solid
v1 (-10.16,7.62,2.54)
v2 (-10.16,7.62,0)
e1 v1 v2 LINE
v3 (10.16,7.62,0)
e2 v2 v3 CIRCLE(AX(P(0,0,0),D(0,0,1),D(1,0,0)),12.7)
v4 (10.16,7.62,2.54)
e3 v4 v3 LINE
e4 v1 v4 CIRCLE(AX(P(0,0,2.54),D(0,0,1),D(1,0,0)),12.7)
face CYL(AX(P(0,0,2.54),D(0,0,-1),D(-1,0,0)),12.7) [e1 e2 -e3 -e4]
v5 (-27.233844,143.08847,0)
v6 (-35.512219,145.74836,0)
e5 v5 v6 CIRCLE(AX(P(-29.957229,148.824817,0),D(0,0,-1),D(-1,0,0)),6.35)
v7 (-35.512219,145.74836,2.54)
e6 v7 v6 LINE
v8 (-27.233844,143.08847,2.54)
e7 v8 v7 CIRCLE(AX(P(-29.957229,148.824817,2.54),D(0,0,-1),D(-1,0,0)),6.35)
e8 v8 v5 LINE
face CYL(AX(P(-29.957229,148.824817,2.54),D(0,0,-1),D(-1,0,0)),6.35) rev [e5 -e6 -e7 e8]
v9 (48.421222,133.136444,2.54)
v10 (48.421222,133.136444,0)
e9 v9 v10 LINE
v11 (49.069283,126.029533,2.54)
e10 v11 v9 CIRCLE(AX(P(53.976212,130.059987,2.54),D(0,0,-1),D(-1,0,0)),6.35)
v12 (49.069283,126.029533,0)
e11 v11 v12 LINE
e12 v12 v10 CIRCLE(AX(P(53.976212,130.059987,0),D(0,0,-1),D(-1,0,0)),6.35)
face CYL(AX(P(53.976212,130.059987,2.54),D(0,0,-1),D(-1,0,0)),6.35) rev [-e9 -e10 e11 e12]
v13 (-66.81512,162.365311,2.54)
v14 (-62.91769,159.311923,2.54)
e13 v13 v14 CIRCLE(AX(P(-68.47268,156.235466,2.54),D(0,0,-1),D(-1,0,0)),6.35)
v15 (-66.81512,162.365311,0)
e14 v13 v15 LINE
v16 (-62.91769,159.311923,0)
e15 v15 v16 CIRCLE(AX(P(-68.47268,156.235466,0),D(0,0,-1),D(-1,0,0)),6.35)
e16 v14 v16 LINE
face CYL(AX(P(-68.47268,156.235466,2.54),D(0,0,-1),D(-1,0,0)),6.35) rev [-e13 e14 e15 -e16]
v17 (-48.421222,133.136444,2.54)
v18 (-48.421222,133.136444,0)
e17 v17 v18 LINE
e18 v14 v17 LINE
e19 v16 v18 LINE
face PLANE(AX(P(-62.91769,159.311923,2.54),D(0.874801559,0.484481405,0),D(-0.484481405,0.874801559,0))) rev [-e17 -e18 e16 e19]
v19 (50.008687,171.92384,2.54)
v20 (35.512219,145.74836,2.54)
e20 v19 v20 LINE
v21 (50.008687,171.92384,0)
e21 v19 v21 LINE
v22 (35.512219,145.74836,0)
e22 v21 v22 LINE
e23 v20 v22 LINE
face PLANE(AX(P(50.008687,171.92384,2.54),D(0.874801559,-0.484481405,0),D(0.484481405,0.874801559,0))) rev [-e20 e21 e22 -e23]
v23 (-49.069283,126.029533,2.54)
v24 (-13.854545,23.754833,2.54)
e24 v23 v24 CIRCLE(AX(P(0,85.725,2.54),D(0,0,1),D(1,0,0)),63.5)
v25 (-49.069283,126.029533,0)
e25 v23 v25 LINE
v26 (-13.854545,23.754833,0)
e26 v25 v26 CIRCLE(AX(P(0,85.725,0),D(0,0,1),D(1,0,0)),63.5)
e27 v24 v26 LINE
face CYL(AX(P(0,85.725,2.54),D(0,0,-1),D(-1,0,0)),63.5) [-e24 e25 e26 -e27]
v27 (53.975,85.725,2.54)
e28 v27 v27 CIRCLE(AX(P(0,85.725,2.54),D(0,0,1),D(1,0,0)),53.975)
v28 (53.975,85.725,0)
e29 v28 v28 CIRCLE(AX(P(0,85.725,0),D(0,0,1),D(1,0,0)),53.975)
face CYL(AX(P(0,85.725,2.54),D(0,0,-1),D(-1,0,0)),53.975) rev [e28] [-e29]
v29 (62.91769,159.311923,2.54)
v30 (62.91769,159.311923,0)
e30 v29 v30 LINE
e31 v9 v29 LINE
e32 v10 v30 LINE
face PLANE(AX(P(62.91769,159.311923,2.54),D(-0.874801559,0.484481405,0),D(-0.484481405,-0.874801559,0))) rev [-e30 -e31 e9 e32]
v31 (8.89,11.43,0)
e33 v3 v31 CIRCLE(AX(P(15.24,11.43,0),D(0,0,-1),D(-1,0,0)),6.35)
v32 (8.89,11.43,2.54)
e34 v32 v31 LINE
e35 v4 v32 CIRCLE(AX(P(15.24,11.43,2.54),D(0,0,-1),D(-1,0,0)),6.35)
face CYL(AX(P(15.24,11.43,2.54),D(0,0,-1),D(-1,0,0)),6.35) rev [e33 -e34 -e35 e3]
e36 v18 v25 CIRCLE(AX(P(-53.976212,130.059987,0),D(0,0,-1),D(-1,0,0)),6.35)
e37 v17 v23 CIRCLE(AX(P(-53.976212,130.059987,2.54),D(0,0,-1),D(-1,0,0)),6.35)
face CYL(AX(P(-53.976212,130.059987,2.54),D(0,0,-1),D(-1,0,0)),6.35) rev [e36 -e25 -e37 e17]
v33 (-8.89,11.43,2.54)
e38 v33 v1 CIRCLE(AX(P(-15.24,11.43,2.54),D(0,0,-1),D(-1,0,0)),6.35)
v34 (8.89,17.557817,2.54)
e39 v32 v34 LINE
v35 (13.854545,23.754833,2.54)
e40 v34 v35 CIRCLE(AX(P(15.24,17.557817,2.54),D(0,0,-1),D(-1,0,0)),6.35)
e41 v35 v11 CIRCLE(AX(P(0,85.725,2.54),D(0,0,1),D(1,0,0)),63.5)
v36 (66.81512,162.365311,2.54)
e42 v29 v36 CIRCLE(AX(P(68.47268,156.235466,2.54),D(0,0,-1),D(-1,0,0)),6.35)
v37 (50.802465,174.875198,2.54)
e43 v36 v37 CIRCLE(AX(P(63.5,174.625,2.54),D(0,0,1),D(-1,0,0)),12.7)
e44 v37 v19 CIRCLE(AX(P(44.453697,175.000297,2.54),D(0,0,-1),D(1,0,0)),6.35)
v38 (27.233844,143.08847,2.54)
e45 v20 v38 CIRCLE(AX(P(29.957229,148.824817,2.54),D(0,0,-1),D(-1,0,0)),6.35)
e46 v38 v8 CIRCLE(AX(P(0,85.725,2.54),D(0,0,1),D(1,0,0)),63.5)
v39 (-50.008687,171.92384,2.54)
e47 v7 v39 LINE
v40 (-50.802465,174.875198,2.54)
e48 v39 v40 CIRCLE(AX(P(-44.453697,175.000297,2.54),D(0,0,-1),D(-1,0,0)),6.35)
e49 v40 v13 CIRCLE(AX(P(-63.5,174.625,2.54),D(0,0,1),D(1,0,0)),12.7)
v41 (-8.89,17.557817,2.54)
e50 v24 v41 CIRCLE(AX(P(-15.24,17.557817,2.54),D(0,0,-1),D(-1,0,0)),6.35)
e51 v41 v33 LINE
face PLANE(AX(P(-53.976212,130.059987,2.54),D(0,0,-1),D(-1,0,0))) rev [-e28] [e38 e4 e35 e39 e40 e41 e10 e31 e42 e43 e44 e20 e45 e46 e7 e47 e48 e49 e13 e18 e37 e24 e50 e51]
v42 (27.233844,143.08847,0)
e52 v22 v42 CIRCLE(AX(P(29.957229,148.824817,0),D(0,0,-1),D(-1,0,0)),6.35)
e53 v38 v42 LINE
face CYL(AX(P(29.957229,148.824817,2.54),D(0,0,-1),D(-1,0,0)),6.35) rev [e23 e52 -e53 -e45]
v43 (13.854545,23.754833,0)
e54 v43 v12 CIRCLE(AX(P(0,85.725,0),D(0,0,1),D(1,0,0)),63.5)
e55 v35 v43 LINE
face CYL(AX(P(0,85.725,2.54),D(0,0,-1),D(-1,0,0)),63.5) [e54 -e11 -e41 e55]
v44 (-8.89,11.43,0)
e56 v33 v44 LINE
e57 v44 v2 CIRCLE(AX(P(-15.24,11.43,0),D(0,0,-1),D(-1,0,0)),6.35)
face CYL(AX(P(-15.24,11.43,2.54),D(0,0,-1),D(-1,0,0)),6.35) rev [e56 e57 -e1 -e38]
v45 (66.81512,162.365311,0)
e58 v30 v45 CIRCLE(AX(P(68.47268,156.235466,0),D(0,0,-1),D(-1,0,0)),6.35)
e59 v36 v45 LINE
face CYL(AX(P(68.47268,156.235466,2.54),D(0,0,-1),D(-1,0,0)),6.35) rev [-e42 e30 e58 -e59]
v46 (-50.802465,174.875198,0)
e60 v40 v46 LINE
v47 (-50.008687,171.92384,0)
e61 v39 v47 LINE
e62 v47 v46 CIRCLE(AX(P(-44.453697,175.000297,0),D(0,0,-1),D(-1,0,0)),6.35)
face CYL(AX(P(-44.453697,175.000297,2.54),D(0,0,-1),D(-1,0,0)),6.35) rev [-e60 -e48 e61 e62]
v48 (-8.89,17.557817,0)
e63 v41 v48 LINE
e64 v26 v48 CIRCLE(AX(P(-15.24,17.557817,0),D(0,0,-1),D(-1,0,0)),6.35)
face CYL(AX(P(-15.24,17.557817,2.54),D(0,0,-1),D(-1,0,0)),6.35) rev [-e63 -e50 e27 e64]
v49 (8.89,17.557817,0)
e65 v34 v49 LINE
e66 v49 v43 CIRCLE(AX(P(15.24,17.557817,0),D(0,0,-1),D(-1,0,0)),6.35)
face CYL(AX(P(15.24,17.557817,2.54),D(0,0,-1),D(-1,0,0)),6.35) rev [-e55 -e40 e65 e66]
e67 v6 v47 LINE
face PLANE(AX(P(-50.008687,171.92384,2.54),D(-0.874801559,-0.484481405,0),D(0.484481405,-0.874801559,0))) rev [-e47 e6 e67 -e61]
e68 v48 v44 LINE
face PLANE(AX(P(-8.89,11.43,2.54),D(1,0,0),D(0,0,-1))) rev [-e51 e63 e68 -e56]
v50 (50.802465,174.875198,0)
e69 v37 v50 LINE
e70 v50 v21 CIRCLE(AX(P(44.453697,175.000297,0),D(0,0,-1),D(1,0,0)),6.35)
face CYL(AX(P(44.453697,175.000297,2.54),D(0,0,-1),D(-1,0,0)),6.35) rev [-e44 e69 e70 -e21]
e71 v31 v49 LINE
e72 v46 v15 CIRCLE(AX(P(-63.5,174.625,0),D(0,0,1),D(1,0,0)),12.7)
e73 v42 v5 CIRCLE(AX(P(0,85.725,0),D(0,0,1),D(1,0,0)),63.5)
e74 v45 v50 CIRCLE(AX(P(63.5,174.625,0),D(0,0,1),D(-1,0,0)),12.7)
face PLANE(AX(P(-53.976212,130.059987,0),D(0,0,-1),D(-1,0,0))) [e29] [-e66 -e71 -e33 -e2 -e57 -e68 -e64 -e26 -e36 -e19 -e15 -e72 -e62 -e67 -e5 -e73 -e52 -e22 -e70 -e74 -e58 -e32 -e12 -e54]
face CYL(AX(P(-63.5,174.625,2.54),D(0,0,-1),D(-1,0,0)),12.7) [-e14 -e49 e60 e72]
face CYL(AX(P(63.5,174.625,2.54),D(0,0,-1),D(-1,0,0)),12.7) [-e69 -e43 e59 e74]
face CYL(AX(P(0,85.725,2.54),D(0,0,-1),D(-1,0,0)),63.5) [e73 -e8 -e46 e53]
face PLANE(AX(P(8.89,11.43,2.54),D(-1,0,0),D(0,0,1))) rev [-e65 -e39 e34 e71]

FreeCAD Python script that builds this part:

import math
import FreeCAD as App
import Part
import Sketcher
from FreeCAD import Vector
Q = App.Units.Quantity

doc = App.newDocument("Part")
body = doc.addObject("PartDesign::Body", "Body")

# Sketch on XY plane
sketch1 = doc.addObject("Sketcher::SketchObject", "Sketch")
body.addObject(sketch1)
sketch1.AttachmentSupport = (doc.XY_Plane, [""])
sketch1.MapMode = "FlatFace"
sketch1.addGeometry(Part.LineSegment(Vector(50, 171.9, 0), Vector(35.5, 145.7, 0)), False)
sketch1.addGeometry(Part.ArcOfCircle(Part.Circle(Vector(30, 148.8, 0), Vector(0, 0, 1), 6.3), math.radians(-115), math.radians(-29)), False)
sketch1.addGeometry(Part.ArcOfCircle(Part.Circle(Vector(0, 85.7, 0), Vector(0, 0, 1), 63.5), math.radians(65), math.radians(115)), False)
sketch1.addGeometry(Part.ArcOfCircle(Part.Circle(Vector(-30, 148.8, 0), Vector(0, 0, 1), 6.3), math.radians(-151), math.radians(-65)), False)
sketch1.addGeometry(Part.LineSegment(Vector(-35.5, 145.7, 0), Vector(-50, 171.9, 0)), False)
sketch1.addGeometry(Part.ArcOfCircle(Part.Circle(Vector(-44.5, 175, 0), Vector(0, 0, 1), 6.3), math.radians(-179), math.radians(-151)), False)
sketch1.addGeometry(Part.ArcOfCircle(Part.Circle(Vector(-63.5, 174.6, 0), Vector(0, 0, 1), 12.7), math.radians(1), math.radians(255)), False)
sketch1.addGeometry(Part.ArcOfCircle(Part.Circle(Vector(-68.5, 156.2, 0), Vector(0, 0, 1), 6.4), math.radians(29), math.radians(75)), False)
sketch1.addGeometry(Part.LineSegment(Vector(-62.9, 159.3, 0), Vector(-48.4, 133.1, 0)), False)
sketch1.addGeometry(Part.ArcOfCircle(Part.Circle(Vector(-54, 130.1, 0), Vector(0, 0, 1), 6.4), math.radians(-39), math.radians(29)), False)
sketch1.addGeometry(Part.ArcOfCircle(Part.Circle(Vector(0, 85.7, 0), Vector(0, 0, 1), 63.5), math.radians(141), math.radians(257)), False)
sketch1.addGeometry(Part.ArcOfCircle(Part.Circle(Vector(-15.2, 17.6, 0), Vector(0, 0, 1), 6.3), math.radians(0), math.radians(77)), False)
sketch1.addGeometry(Part.LineSegment(Vector(-8.9, 17.6, 0), Vector(-8.9, 11.4, 0)), False)
sketch1.addGeometry(Part.ArcOfCircle(Part.Circle(Vector(-15.2, 11.4, 0), Vector(0, 0, 1), 6.3), math.radians(-37), math.radians(0)), False)
sketch1.addGeometry(Part.ArcOfCircle(Part.Circle(Vector(0, 0, 0), Vector(0, 0, 1), 12.7), math.radians(143), math.radians(397)), False)
sketch1.addGeometry(Part.ArcOfCircle(Part.Circle(Vector(15.2, 11.4, 0), Vector(0, 0, 1), 6.3), math.radians(180), math.radians(217)), False)
sketch1.addGeometry(Part.LineSegment(Vector(8.9, 11.4, 0), Vector(8.9, 17.6, 0)), False)
sketch1.addGeometry(Part.ArcOfCircle(Part.Circle(Vector(15.2, 17.6, 0), Vector(0, 0, 1), 6.3), math.radians(103), math.radians(180)), False)
sketch1.addGeometry(Part.ArcOfCircle(Part.Circle(Vector(0, 85.7, 0), Vector(0, 0, 1), 63.5), math.radians(-77), math.radians(39)), False)
sketch1.addGeometry(Part.ArcOfCircle(Part.Circle(Vector(54, 130.1, 0), Vector(0, 0, 1), 6.4), math.radians(151), math.radians(219)), False)
sketch1.addGeometry(Part.LineSegment(Vector(48.4, 133.1, 0), Vector(62.9, 159.3, 0)), False)
sketch1.addGeometry(Part.ArcOfCircle(Part.Circle(Vector(68.5, 156.2, 0), Vector(0, 0, 1), 6.4), math.radians(105), math.radians(151)), False)
sketch1.addGeometry(Part.ArcOfCircle(Part.Circle(Vector(63.5, 174.6, 0), Vector(0, 0, 1), 12.7), math.radians(-75), math.radians(179)), False)
sketch1.addGeometry(Part.ArcOfCircle(Part.Circle(Vector(44.5, 175, 0), Vector(0, 0, 1), 6.3), math.radians(-29), math.radians(-1)), False)
sketch1.addGeometry(Part.Circle(Vector(0, 85.7, 0), Vector(0, 0, 1), 54), False)
sketch1.addConstraint(Sketcher.Constraint("Tangent", 0, 2, 1, 2))
sketch1.addConstraint(Sketcher.Constraint("Tangent", 1, 1, 2, 1))
sketch1.addConstraint(Sketcher.Constraint("Tangent", 2, 2, 3, 2))
sketch1.addConstraint(Sketcher.Constraint("Tangent", 3, 1, 4, 1))
sketch1.addConstraint(Sketcher.Constraint("Tangent", 4, 2, 5, 2))
sketch1.addConstraint(Sketcher.Constraint("Tangent", 5, 1, 6, 1))
sketch1.addConstraint(Sketcher.Constraint("Tangent", 6, 2, 7, 2))
sketch1.addConstraint(Sketcher.Constraint("Tangent", 7, 1, 8, 1))
sketch1.addConstraint(Sketcher.Constraint("Tangent", 8, 2, 9, 2))
sketch1.addConstraint(Sketcher.Constraint("Tangent", 9, 1, 10, 1))
sketch1.addConstraint(Sketcher.Constraint("Tangent", 10, 2, 11, 2))
sketch1.addConstraint(Sketcher.Constraint("Tangent", 11, 1, 12, 1))
sketch1.addConstraint(Sketcher.Constraint("Tangent", 12, 2, 13, 2))
sketch1.addConstraint(Sketcher.Constraint("Tangent", 13, 1, 14, 1))
sketch1.addConstraint(Sketcher.Constraint("Tangent", 14, 2, 15, 2))
sketch1.addConstraint(Sketcher.Constraint("Tangent", 15, 1, 16, 1))
sketch1.addConstraint(Sketcher.Constraint("Tangent", 16, 2, 17, 2))
sketch1.addConstraint(Sketcher.Constraint("Tangent", 17, 1, 18, 1))
sketch1.addConstraint(Sketcher.Constraint("Tangent", 18, 2, 19, 2))
sketch1.addConstraint(Sketcher.Constraint("Tangent", 19, 1, 20, 1))
sketch1.addConstraint(Sketcher.Constraint("Tangent", 20, 2, 21, 2))
sketch1.addConstraint(Sketcher.Constraint("Tangent", 21, 1, 22, 1))
sketch1.addConstraint(Sketcher.Constraint("Tangent", 22, 2, 23, 2))
sketch1.addConstraint(Sketcher.Constraint("Tangent", 23, 1, 0, 1))
sketch1.addConstraint(Sketcher.Constraint("Vertical", 12))
sketch1.addConstraint(Sketcher.Constraint("Vertical", 16))
sketch1.addConstraint(Sketcher.Constraint("Coincident", 14, 3, -1, 1))
sketch1.addConstraint(Sketcher.Constraint("Coincident", 10, 3, 2, 3))
sketch1.addConstraint(Sketcher.Constraint("Coincident", 18, 3, 2, 3))
sketch1.addConstraint(Sketcher.Constraint("Coincident", 24, 3, 2, 3))
sketch1.addConstraint(Sketcher.Constraint("Equal", 1, 3))
sketch1.addConstraint(Sketcher.Constraint("Equal", 3, 5))
sketch1.addConstraint(Sketcher.Constraint("Equal", 5, 7))
sketch1.addConstraint(Sketcher.Constraint("Equal", 7, 9))
sketch1.addConstraint(Sketcher.Constraint("Equal", 2, 10))
sketch1.addConstraint(Sketcher.Constraint("Equal", 9, 11))
sketch1.addConstraint(Sketcher.Constraint("Equal", 11, 13))
sketch1.addConstraint(Sketcher.Constraint("Equal", 6, 14))
sketch1.addConstraint(Sketcher.Constraint("Equal", 13, 15))
sketch1.addConstraint(Sketcher.Constraint("Equal", 15, 17))
sketch1.addConstraint(Sketcher.Constraint("Equal", 10, 18))
sketch1.addConstraint(Sketcher.Constraint("Equal", 17, 19))
sketch1.addConstraint(Sketcher.Constraint("Equal", 19, 21))
sketch1.addConstraint(Sketcher.Constraint("Equal", 14, 22))
sketch1.addConstraint(Sketcher.Constraint("Equal", 21, 23))
sketch1.addConstraint(Sketcher.Constraint("Symmetric", 1, 3, 3, 3, -2))
sketch1.addConstraint(Sketcher.Constraint("Symmetric", 7, 3, 21, 3, -2))
sketch1.addConstraint(Sketcher.Constraint("Symmetric", 5, 3, 23, 3, -2))
sketch1.addConstraint(Sketcher.Constraint("Parallel", 4, 8))
sketch1.addConstraint(Sketcher.Constraint("Parallel", 0, 20))
sketch1.addConstraint(Sketcher.Constraint("Horizontal", 13, 3, 15, 3))
sketch1.addConstraint(Sketcher.Constraint("Equal", 4, 8))
sketch1.addConstraint(Sketcher.Constraint("Radius", 2, Q("2.5 in")))
sketch1.addConstraint(Sketcher.Constraint("Radius", 6, Q("0.5 in")))
sketch1.addConstraint(Sketcher.Constraint("Diameter", 24, Q("4.25 in")))
sketch1.addConstraint(Sketcher.Constraint("Radius", 1, Q("0.25 in")))
sketch1.addConstraint(Sketcher.Constraint("DistanceX", 6, 3, -1, 1, Q("2.5 in")))
sketch1.addConstraint(Sketcher.Constraint("DistanceX", 11, 3, -1, 1, Q("0.6 in")))
sketch1.addConstraint(Sketcher.Constraint("DistanceY", 2, 3, 6, 3, Q("3.5 in")))
sketch1.addConstraint(Sketcher.Constraint("DistanceY", -1, 1, 2, 3, Q("3.375 in")))
sketch1.addConstraint(Sketcher.Constraint("DistanceY", 11, 3, 3, 3, Q("131.267001 mm")))
sketch1.addConstraint(Sketcher.Constraint("DistanceY", 5, 1, 5, 3, Q("0.125099 mm")))
pad1 = doc.addObject("PartDesign::Pad", "Pad")
body.addObject(pad1)
pad1.Profile = sketch1
pad1.Length = Q("0.1 in")

doc.recompute()
